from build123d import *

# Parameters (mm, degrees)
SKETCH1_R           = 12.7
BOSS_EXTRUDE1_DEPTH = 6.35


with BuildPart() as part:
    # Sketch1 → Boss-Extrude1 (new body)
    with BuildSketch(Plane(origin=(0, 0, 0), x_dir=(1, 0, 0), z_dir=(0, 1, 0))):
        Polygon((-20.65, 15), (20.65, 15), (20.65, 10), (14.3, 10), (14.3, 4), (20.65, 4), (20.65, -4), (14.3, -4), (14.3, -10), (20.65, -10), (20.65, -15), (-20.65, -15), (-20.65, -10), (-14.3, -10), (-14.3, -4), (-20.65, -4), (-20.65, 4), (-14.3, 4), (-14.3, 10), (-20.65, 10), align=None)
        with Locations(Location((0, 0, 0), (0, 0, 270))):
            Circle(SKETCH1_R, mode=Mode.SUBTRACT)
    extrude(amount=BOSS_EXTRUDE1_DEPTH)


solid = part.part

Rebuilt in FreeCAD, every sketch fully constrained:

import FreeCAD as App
import Part
import Sketcher

V = App.Vector
Q = App.Units.Quantity

doc = App.newDocument("Part")
body = doc.addObject("PartDesign::Body", "Body")

# Sketch on XZ plane
sketch1 = doc.addObject("Sketcher::SketchObject", "Sketch")
body.addObject(sketch1)
sketch1.AttachmentSupport = (doc.XZ_Plane, [""])
sketch1.MapMode = "FlatFace"
sketch1.addGeometry([
    Part.LineSegment(V(20.65, -15, 0), V(-20.65, -15, 0)),  # 0
    Part.LineSegment(V(-20.65, -15, 0), V(-20.65, -10, 0)),  # 1
    Part.LineSegment(V(-20.65, -10, 0), V(-14.3, -10, 0)),  # 2
    Part.LineSegment(V(-14.3, -10, 0), V(-14.3, -4, 0)),  # 3
    Part.LineSegment(V(-14.3, -4, 0), V(-20.65, -4, 0)),  # 4
    Part.LineSegment(V(-20.65, -4, 0), V(-20.65, 4, 0)),  # 5
    Part.LineSegment(V(-20.65, 4, 0), V(-14.3, 4, 0)),  # 6
    Part.LineSegment(V(-14.3, 4, 0), V(-14.3, 10, 0)),  # 7
    Part.LineSegment(V(-14.3, 10, 0), V(-20.65, 10, 0)),  # 8
    Part.LineSegment(V(-20.65, 10, 0), V(-20.65, 15, 0)),  # 9
    Part.LineSegment(V(-20.65, 15, 0), V(20.65, 15, 0)),  # 10
    Part.LineSegment(V(20.65, 15, 0), V(20.65, 10, 0)),  # 11
    Part.LineSegment(V(20.65, 10, 0), V(14.3, 10, 0)),  # 12
    Part.LineSegment(V(14.3, 10, 0), V(14.3, 4, 0)),  # 13
    Part.LineSegment(V(14.3, 4, 0), V(20.65, 4, 0)),  # 14
    Part.LineSegment(V(20.65, 4, 0), V(20.65, -4, 0)),  # 15
    Part.LineSegment(V(20.65, -4, 0), V(14.3, -4, 0)),  # 16
    Part.LineSegment(V(14.3, -4, 0), V(14.3, -10, 0)),  # 17
    Part.LineSegment(V(14.3, -10, 0), V(20.65, -10, 0)),  # 18
    Part.LineSegment(V(20.65, -10, 0), V(20.65, -15, 0)),  # 19
    Part.Circle(V(0, 0, 0), V(0, 0, 1), 12.7),  # 20
], False)
sketch1.addConstraint([
    Sketcher.Constraint("Coincident", 0, 2, 1, 1),
    Sketcher.Constraint("Coincident", 1, 2, 2, 1),
    Sketcher.Constraint("Coincident", 2, 2, 3, 1),
    Sketcher.Constraint("Coincident", 3, 2, 4, 1),
    Sketcher.Constraint("Coincident", 4, 2, 5, 1),
    Sketcher.Constraint("Coincident", 5, 2, 6, 1),
    Sketcher.Constraint("Coincident", 6, 2, 7, 1),
    Sketcher.Constraint("Coincident", 7, 2, 8, 1),
    Sketcher.Constraint("Coincident", 8, 2, 9, 1),
    Sketcher.Constraint("Coincident", 9, 2, 10, 1),
    Sketcher.Constraint("Coincident", 10, 2, 11, 1),
    Sketcher.Constraint("Coincident", 11, 2, 12, 1),
    Sketcher.Constraint("Coincident", 12, 2, 13, 1),
    Sketcher.Constraint("Coincident", 13, 2, 14, 1),
    Sketcher.Constraint("Coincident", 14, 2, 15, 1),
    Sketcher.Constraint("Coincident", 15, 2, 16, 1),
    Sketcher.Constraint("Coincident", 16, 2, 17, 1),
    Sketcher.Constraint("Coincident", 17, 2, 18, 1),
    Sketcher.Constraint("Coincident", 18, 2, 19, 1),
    Sketcher.Constraint("Coincident", 19, 2, 0, 1),
    Sketcher.Constraint("Horizontal", 0),
    Sketcher.Constraint("Vertical", 1),
    Sketcher.Constraint("Horizontal", 2),
    Sketcher.Constraint("Vertical", 3),
    Sketcher.Constraint("Horizontal", 4),
    Sketcher.Constraint("Vertical", 5),
    Sketcher.Constraint("Horizontal", 6),
    Sketcher.Constraint("Vertical", 7),
    Sketcher.Constraint("Horizontal", 8),
    Sketcher.Constraint("Vertical", 9),
    Sketcher.Constraint("Horizontal", 10),
    Sketcher.Constraint("Vertical", 11),
    Sketcher.Constraint("Horizontal", 12),
    Sketcher.Constraint("Vertical", 13),
    Sketcher.Constraint("Horizontal", 14),
    Sketcher.Constraint("Vertical", 15),
    Sketcher.Constraint("Horizontal", 16),
    Sketcher.Constraint("Vertical", 17),
    Sketcher.Constraint("Horizontal", 18),
    Sketcher.Constraint("Vertical", 19),
    Sketcher.Constraint("Coincident", 20, 3, -1, 1),
    Sketcher.Constraint("Symmetric", 0, 2, 10, 2, -1, 1),
    Sketcher.Constraint("Symmetric", 2, 2, 12, 2, -1, 1),
    Sketcher.Constraint("Symmetric", 4, 2, 14, 2, -1, 1),
    Sketcher.Constraint("Symmetric", 6, 2, 16, 2, -1, 1),
    Sketcher.Constraint("Symmetric", 8, 2, 18, 2, -1, 1),
    Sketcher.Constraint("Symmetric", 8, 2, 11, 2, -2),
    Sketcher.Constraint("Symmetric", 6, 2, 13, 2, -2),
    Sketcher.Constraint("Vertical", 1, 2, 4, 2),
    Sketcher.Constraint("Diameter", 20, Q("25.4 mm")),
    Sketcher.Constraint("DistanceY", 1, 1, 1, 2, Q("5 mm")),
    Sketcher.Constraint("DistanceY", 3, 1, 3, 2, Q("6 mm")),
    Sketcher.Constraint("DistanceY", 5, 1, 5, 2, Q("8 mm")),
    Sketcher.Constraint("DistanceX", 0, 2, 0, 1, Q("41.3 mm")),
    Sketcher.Constraint("DistanceX", 2, 1, 2, 2, Q("6.35 mm")),
])
pad1 = doc.addObject("PartDesign::Pad", "Pad")
body.addObject(pad1)
pad1.Profile = sketch1
pad1.Length = 6.35
pad1.Reversed = True

doc.recompute()
